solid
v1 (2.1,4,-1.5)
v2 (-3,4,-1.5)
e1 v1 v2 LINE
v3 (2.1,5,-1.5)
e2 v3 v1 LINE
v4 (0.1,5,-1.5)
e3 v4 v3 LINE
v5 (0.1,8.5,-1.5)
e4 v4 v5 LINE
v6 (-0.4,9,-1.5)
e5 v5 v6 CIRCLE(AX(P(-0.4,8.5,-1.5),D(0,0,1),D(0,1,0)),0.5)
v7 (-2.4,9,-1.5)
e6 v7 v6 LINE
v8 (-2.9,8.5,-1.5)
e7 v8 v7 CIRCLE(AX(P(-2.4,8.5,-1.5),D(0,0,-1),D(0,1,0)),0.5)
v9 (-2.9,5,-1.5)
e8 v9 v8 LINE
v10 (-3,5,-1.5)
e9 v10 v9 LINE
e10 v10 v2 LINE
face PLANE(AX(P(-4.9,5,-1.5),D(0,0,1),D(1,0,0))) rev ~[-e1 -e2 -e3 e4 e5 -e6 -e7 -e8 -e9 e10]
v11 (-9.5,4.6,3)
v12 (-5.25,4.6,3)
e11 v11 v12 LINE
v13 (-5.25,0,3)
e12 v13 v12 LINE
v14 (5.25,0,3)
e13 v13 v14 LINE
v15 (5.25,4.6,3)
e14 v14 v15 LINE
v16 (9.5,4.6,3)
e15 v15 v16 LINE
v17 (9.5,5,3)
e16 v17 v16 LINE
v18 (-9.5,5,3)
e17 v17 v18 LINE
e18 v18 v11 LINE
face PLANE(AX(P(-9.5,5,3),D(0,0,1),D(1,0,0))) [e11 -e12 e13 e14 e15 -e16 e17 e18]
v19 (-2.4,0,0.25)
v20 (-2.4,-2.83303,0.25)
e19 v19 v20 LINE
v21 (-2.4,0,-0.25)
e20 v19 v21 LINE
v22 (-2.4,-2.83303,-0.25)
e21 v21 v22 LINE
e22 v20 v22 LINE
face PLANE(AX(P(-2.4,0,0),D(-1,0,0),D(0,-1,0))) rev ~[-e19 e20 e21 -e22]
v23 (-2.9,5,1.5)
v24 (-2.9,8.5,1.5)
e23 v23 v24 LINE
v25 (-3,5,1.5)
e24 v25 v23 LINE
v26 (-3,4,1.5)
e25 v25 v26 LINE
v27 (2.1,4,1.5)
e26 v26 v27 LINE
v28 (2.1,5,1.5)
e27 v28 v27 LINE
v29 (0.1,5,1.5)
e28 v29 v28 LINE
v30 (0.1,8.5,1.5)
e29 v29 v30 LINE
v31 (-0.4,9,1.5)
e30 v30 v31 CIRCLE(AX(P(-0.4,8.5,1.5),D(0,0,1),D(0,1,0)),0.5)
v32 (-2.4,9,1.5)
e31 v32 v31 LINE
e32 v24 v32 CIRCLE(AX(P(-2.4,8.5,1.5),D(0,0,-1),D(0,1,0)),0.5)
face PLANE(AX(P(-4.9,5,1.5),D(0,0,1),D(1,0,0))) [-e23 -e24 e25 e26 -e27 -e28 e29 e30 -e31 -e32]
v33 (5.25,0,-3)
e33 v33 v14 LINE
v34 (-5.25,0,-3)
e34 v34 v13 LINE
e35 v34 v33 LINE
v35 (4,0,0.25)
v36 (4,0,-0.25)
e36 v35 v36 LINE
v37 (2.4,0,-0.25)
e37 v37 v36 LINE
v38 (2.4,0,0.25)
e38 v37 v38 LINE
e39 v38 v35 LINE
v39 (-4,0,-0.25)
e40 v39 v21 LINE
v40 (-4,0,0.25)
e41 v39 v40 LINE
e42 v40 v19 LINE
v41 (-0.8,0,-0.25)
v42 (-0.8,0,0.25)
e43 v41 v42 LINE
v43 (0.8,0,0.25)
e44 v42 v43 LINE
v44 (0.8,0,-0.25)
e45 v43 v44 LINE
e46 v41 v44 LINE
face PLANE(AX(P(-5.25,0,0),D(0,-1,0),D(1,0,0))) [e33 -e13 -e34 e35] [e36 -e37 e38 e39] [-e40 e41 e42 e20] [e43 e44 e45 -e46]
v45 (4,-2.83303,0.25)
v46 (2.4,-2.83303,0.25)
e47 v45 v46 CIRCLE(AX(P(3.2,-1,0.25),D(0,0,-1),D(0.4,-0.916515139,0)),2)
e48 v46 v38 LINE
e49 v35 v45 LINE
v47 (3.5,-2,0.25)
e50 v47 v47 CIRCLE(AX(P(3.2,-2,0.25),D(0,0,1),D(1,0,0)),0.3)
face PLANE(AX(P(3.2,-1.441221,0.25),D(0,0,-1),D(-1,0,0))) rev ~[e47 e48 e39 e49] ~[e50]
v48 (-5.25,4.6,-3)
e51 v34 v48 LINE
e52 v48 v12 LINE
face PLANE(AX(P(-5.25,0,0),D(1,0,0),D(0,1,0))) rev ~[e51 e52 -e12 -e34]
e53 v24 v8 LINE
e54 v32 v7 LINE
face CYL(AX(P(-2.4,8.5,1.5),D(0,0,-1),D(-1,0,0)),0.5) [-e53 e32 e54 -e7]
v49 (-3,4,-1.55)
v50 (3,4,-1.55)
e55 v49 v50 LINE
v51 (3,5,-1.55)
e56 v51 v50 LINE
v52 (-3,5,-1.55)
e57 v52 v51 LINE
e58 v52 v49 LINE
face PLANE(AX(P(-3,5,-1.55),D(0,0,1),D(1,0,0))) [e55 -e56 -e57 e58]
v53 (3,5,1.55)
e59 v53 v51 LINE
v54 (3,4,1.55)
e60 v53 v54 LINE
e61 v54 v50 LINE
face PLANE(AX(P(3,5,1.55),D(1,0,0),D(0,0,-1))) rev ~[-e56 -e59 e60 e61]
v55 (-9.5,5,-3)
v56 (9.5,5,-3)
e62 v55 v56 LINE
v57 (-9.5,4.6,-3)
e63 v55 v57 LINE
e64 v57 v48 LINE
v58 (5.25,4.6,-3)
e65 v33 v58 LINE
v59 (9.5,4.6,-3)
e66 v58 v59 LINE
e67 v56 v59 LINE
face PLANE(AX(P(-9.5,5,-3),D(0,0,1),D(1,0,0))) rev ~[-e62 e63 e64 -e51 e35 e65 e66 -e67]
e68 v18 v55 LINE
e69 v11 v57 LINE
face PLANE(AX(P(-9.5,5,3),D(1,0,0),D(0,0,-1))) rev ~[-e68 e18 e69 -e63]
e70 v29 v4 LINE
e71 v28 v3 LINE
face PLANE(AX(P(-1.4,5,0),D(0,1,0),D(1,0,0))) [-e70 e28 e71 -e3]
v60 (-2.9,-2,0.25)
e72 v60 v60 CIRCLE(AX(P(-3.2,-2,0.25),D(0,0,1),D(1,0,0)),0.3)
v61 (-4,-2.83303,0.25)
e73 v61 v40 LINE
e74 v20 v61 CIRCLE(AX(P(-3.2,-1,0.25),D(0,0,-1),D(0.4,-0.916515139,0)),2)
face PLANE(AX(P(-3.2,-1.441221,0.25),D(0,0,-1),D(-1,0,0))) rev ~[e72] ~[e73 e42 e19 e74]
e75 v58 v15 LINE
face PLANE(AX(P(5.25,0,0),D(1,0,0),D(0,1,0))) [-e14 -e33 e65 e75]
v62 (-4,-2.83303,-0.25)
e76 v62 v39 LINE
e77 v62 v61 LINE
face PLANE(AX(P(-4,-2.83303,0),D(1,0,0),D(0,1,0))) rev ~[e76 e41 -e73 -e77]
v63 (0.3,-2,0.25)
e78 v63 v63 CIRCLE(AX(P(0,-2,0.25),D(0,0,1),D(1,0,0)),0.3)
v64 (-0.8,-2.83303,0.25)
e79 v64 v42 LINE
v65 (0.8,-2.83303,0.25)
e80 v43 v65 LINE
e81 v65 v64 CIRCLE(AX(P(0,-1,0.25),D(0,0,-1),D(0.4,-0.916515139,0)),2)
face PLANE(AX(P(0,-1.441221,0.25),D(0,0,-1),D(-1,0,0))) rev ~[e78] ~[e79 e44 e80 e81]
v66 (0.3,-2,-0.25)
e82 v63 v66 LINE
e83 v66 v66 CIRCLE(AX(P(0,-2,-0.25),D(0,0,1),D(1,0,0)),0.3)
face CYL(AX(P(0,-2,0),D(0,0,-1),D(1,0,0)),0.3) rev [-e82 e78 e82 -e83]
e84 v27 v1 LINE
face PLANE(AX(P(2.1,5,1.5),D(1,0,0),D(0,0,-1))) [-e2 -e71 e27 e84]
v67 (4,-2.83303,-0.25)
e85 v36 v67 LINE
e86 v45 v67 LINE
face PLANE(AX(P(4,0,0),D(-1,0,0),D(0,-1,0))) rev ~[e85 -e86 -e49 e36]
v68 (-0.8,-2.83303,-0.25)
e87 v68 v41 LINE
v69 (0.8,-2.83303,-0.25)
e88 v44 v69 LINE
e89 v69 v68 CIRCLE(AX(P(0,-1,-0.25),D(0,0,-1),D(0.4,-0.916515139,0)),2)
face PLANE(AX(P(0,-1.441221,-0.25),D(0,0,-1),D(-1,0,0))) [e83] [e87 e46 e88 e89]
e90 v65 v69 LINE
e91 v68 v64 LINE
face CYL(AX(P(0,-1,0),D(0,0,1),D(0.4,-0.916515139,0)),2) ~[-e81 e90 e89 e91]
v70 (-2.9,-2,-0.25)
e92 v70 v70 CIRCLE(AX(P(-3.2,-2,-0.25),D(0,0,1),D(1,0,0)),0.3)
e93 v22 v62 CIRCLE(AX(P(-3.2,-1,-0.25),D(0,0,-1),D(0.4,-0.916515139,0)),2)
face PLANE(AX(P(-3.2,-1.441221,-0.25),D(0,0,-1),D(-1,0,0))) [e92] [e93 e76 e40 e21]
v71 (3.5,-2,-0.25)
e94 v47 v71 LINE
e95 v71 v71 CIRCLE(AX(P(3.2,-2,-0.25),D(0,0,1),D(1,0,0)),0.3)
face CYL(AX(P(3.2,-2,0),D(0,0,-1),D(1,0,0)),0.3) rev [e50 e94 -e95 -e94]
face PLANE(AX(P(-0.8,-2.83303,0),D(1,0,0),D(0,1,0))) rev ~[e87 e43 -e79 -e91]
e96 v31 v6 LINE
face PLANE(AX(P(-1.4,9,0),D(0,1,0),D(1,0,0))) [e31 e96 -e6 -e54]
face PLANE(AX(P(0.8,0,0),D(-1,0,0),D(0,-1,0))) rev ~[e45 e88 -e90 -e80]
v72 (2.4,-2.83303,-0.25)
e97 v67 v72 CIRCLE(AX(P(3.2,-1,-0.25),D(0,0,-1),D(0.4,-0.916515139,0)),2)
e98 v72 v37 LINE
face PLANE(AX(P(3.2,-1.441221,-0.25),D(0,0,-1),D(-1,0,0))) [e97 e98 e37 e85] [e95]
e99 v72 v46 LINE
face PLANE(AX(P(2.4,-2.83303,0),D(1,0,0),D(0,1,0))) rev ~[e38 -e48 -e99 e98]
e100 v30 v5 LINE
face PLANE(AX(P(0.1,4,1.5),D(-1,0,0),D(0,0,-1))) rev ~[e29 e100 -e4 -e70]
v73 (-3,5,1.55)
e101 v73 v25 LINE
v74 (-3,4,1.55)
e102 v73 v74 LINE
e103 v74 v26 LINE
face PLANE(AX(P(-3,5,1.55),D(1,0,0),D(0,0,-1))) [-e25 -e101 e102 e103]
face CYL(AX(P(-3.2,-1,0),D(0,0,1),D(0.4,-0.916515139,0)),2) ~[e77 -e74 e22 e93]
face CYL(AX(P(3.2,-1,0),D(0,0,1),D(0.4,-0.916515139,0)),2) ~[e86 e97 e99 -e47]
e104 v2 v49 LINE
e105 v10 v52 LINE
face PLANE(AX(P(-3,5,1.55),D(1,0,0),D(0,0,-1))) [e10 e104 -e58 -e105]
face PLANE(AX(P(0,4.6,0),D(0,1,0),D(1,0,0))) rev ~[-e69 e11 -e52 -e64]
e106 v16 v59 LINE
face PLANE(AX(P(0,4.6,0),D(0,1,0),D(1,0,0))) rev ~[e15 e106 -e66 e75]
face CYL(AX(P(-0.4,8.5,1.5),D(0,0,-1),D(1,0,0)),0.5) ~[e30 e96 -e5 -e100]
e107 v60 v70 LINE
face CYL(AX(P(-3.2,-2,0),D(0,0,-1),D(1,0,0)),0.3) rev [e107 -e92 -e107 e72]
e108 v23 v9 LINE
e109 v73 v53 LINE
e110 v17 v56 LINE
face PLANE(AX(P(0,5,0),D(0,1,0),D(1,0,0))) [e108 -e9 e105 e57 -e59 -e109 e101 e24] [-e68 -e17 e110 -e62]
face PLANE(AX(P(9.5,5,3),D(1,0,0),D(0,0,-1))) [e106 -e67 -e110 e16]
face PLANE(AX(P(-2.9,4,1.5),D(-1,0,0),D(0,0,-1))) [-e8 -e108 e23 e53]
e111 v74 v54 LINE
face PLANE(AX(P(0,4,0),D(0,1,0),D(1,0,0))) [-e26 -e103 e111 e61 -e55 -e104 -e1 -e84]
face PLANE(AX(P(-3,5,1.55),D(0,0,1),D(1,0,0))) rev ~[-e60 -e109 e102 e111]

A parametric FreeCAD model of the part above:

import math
import FreeCAD as App
import Part
import Sketcher

V = App.Vector
Q = App.Units.Quantity


def edges_at(feature, points):
    """Names of the edges that pass closest to the given points."""
    edges = feature.Shape.Edges
    near = lambda p: min(range(len(edges)), key=lambda i: edges[i].distToShape(Part.Vertex(*p))[0])
    return sorted({f"Edge{near(p) + 1}" for p in points})


def add_polygon(sketch, points):
    """Adds a closed chain of lines whose ends are joined by coincident constraints."""
    first, n = sketch.GeometryCount, len(points)
    for a, b in zip(points, points[1:] + points[:1]):
        sketch.addGeometry(Part.LineSegment(App.Vector(*a, 0), App.Vector(*b, 0)), False)
    for i in range(n):
        sketch.addConstraint(Sketcher.Constraint("Coincident", first + i, 2, first + (i + 1) % n, 1))

doc = App.newDocument("Part")
body = doc.addObject("PartDesign::Body", "Body")

sketch1 = body.newObject("Sketcher::SketchObject", "Sketch")
sketch1.AttachmentSupport = (doc.getObject("XY_Plane"), [""])
sketch1.MapMode = "FlatFace"
add_polygon(sketch1, [(-5.25, 5), (-5.25, 0), (5.25, 0), (5.25, 5)])
sketch1.addConstraint([
    Sketcher.Constraint("Vertical", 0),
    Sketcher.Constraint("Horizontal", 1),
    Sketcher.Constraint("Vertical", 2),
    Sketcher.Constraint("Horizontal", 3),
    Sketcher.Constraint("Symmetric", 0, 2, 1, 2, -1, 1),
    Sketcher.Constraint("DistanceY", 0, 2, 0, 1, Q("5 mm")),
    Sketcher.Constraint("DistanceX", 1, 1, 1, 2, Q("10.5 mm")),
])
pad1 = body.newObject("PartDesign::Pad", "Pad")
pad1.Profile = sketch1
pad1.Length = 6
pad1.Midplane = True

sketch2 = body.newObject("Sketcher::SketchObject", "Sketch001")
sketch2.AttachmentSupport = (doc.getObject("XZ_Plane"), [""])
sketch2.MapMode = "FlatFace"
sketch2.AttachmentOffset = App.Placement(V(0, 0, -5), App.Rotation())
add_polygon(sketch2, [(-9.5, -3), (-9.5, 3), (9.5, 3), (9.5, -3)])
sketch2.addConstraint([
    Sketcher.Constraint("Vertical", 0),
    Sketcher.Constraint("Horizontal", 1),
    Sketcher.Constraint("Vertical", 2),
    Sketcher.Constraint("Horizontal", 3),
    Sketcher.Constraint("Symmetric", 0, 2, 2, 2, -1, 1),
    Sketcher.Constraint("DistanceX", 1, 1, 1, 2, Q("19 mm")),
    Sketcher.Constraint("DistanceY", 0, 1, 0, 2, Q("6 mm")),
])
pad2 = body.newObject("PartDesign::Pad", "Pad001")
pad2.Profile = sketch2
pad2.Length = 0.4

sketch3 = body.newObject("Sketcher::SketchObject", "Sketch002")
sketch3.AttachmentSupport = (doc.getObject("XZ_Plane"), [""])
sketch3.MapMode = "FlatFace"
sketch3.AttachmentOffset = App.Placement(V(0, 0, -5), App.Rotation())
add_polygon(sketch3, [(-3, -1.55), (-3, 1.55), (3, 1.55), (3, -1.55)])
sketch3.addConstraint([
    Sketcher.Constraint("Vertical", 0),
    Sketcher.Constraint("Horizontal", 1),
    Sketcher.Constraint("Vertical", 2),
    Sketcher.Constraint("Horizontal", 3),
    Sketcher.Constraint("Symmetric", 0, 2, 2, 2, -1, 1),
    Sketcher.Constraint("DistanceX", 1, 1, 1, 2, Q("6 mm")),
    Sketcher.Constraint("DistanceY", 0, 1, 0, 2, Q("3.1 mm")),
])
pocket1 = body.newObject("PartDesign::Pocket", "Pocket")
pocket1.Profile = sketch3
pocket1.Length = 1
pocket1.Reversed = True

sketch4 = body.newObject("Sketcher::SketchObject", "Sketch003")
sketch4.AttachmentSupport = (doc.getObject("XZ_Plane"), [""])
sketch4.MapMode = "FlatFace"
sketch4.AttachmentOffset = App.Placement(V(0, 0, -4), App.Rotation())
add_polygon(sketch4, [(-2.9, -1.5), (-2.9, 1.5), (0.1, 1.5), (0.1, -1.5)])
sketch4.addConstraint([
    Sketcher.Constraint("Vertical", 0),
    Sketcher.Constraint("Horizontal", 1),
    Sketcher.Constraint("Vertical", 2),
    Sketcher.Constraint("Horizontal", 3),
    Sketcher.Constraint("Equal", 3, 0),
    Sketcher.Constraint("DistanceX", 1, 1, 1, 2, Q("3 mm")),
    Sketcher.Constraint("DistanceX", 0, 2, -1, 1, Q("2.9 mm")),
    Sketcher.Constraint("DistanceY", -1, 1, 0, 2, Q("1.5 mm")),
])
pad3 = body.newObject("PartDesign::Pad", "Pad002")
pad3.Profile = sketch4
pad3.Length = 5
pad3.Reversed = True

sketch5 = body.newObject("Sketcher::SketchObject", "Sketch004")
sketch5.AttachmentSupport = (doc.getObject("XZ_Plane"), [""])
sketch5.MapMode = "FlatFace"
sketch5.AttachmentOffset = App.Placement(V(0, 0, -5), App.Rotation())
add_polygon(sketch5, [(-4.9, -1.5), (-4.9, 1.5), (2.1, 1.5), (2.1, -1.5)])
sketch5.addConstraint([
    Sketcher.Constraint("Vertical", 0),
    Sketcher.Constraint("Horizontal", 1),
    Sketcher.Constraint("Vertical", 2),
    Sketcher.Constraint("Horizontal", 3),
    Sketcher.Constraint("DistanceX", 1, 1, 1, 2, Q("7 mm")),
    Sketcher.Constraint("DistanceY", 0, 1, 0, 2, Q("3 mm")),
    Sketcher.Constraint("DistanceX", 0, 2, -1, 1, Q("4.9 mm")),
    Sketcher.Constraint("DistanceY", -1, 1, 0, 2, Q("1.5 mm")),
])
pad4 = body.newObject("PartDesign::Pad", "Pad003")
pad4.Profile = sketch5
pad4.Length = 1

sketch6 = body.newObject("Sketcher::SketchObject", "Sketch005")
sketch6.AttachmentSupport = (doc.getObject("XY_Plane"), [""])
sketch6.MapMode = "FlatFace"
sketch6.addGeometry([
    Part.LineSegment(V(0.8, 0, 0), V(-0.8, 0, 0)),
    Part.LineSegment(V(-0.8, 0, 0), V(-0.8, -2.83303, 0)),
    Part.ArcOfCircle(Part.Circle(V(0, -1, 0), V(0, 0, 1), 2), math.radians(-113.578178), math.radians(-66.421822)),
    Part.LineSegment(V(0.8, -2.83303, 0), V(0.8, 0, 0)),
    Part.Circle(V(0, -2, 0), V(0, 0, 1), 0.3),
], False)
sketch6.addConstraint([
    Sketcher.Constraint("Coincident", 0, 2, 1, 1),
    Sketcher.Constraint("Coincident", 1, 2, 2, 1),
    Sketcher.Constraint("Coincident", 2, 2, 3, 1),
    Sketcher.Constraint("Coincident", 3, 2, 0, 1),
    Sketcher.Constraint("Horizontal", 0),
    Sketcher.Constraint("Vertical", 1),
    Sketcher.Constraint("Vertical", 3),
    Sketcher.Constraint("Symmetric", 0, 2, 3, 2, -1, 1),
    Sketcher.Constraint("PointOnObject", 2, 3, -2),
    Sketcher.Constraint("PointOnObject", 4, 3, -2),
    Sketcher.Constraint("Radius", 2, Q("2 mm")),
    Sketcher.Constraint("Diameter", 4, Q("0.6 mm")),
    Sketcher.Constraint("DistanceX", 0, 2, 0, 1, Q("1.6 mm")),
    Sketcher.Constraint("DistanceY", 2, 3, -1, 1, Q("1 mm")),
    Sketcher.Constraint("DistanceY", 4, 3, -1, 1, Q("2 mm")),
])
pad5 = body.newObject("PartDesign::Pad", "Pad004")
pad5.Profile = sketch6
pad5.Length = 0.5
pad5.Midplane = True
doc.recompute()

linearpattern = body.newObject("PartDesign::LinearPattern", "LinearPattern")
linearpattern.Originals = [pad5]
linearpattern.Direction = (doc.getObject("X_Axis"), [""])
linearpattern.Mode = "offset"
linearpattern.Offset = 3.2
linearpattern.Occurrences = 2
body.Tip = linearpattern
doc.recompute()

linearpattern2 = body.newObject("PartDesign::LinearPattern", "LinearPattern001")
linearpattern2.Originals = [pad5]
linearpattern2.Direction = (doc.getObject("X_Axis"), [""])
linearpattern2.Mode = "offset"
linearpattern2.Offset = 3.2
linearpattern2.Occurrences = 2
linearpattern2.Reversed = True
body.Tip = linearpattern2
doc.recompute()

fillet = body.newObject("PartDesign::Fillet", "Fillet")
fillet.Base = (linearpattern2, edges_at(linearpattern2, [(-2.9, 9, 0), (0.1, 9, 0)]))
fillet.Radius = 0.5

doc.recompute()
